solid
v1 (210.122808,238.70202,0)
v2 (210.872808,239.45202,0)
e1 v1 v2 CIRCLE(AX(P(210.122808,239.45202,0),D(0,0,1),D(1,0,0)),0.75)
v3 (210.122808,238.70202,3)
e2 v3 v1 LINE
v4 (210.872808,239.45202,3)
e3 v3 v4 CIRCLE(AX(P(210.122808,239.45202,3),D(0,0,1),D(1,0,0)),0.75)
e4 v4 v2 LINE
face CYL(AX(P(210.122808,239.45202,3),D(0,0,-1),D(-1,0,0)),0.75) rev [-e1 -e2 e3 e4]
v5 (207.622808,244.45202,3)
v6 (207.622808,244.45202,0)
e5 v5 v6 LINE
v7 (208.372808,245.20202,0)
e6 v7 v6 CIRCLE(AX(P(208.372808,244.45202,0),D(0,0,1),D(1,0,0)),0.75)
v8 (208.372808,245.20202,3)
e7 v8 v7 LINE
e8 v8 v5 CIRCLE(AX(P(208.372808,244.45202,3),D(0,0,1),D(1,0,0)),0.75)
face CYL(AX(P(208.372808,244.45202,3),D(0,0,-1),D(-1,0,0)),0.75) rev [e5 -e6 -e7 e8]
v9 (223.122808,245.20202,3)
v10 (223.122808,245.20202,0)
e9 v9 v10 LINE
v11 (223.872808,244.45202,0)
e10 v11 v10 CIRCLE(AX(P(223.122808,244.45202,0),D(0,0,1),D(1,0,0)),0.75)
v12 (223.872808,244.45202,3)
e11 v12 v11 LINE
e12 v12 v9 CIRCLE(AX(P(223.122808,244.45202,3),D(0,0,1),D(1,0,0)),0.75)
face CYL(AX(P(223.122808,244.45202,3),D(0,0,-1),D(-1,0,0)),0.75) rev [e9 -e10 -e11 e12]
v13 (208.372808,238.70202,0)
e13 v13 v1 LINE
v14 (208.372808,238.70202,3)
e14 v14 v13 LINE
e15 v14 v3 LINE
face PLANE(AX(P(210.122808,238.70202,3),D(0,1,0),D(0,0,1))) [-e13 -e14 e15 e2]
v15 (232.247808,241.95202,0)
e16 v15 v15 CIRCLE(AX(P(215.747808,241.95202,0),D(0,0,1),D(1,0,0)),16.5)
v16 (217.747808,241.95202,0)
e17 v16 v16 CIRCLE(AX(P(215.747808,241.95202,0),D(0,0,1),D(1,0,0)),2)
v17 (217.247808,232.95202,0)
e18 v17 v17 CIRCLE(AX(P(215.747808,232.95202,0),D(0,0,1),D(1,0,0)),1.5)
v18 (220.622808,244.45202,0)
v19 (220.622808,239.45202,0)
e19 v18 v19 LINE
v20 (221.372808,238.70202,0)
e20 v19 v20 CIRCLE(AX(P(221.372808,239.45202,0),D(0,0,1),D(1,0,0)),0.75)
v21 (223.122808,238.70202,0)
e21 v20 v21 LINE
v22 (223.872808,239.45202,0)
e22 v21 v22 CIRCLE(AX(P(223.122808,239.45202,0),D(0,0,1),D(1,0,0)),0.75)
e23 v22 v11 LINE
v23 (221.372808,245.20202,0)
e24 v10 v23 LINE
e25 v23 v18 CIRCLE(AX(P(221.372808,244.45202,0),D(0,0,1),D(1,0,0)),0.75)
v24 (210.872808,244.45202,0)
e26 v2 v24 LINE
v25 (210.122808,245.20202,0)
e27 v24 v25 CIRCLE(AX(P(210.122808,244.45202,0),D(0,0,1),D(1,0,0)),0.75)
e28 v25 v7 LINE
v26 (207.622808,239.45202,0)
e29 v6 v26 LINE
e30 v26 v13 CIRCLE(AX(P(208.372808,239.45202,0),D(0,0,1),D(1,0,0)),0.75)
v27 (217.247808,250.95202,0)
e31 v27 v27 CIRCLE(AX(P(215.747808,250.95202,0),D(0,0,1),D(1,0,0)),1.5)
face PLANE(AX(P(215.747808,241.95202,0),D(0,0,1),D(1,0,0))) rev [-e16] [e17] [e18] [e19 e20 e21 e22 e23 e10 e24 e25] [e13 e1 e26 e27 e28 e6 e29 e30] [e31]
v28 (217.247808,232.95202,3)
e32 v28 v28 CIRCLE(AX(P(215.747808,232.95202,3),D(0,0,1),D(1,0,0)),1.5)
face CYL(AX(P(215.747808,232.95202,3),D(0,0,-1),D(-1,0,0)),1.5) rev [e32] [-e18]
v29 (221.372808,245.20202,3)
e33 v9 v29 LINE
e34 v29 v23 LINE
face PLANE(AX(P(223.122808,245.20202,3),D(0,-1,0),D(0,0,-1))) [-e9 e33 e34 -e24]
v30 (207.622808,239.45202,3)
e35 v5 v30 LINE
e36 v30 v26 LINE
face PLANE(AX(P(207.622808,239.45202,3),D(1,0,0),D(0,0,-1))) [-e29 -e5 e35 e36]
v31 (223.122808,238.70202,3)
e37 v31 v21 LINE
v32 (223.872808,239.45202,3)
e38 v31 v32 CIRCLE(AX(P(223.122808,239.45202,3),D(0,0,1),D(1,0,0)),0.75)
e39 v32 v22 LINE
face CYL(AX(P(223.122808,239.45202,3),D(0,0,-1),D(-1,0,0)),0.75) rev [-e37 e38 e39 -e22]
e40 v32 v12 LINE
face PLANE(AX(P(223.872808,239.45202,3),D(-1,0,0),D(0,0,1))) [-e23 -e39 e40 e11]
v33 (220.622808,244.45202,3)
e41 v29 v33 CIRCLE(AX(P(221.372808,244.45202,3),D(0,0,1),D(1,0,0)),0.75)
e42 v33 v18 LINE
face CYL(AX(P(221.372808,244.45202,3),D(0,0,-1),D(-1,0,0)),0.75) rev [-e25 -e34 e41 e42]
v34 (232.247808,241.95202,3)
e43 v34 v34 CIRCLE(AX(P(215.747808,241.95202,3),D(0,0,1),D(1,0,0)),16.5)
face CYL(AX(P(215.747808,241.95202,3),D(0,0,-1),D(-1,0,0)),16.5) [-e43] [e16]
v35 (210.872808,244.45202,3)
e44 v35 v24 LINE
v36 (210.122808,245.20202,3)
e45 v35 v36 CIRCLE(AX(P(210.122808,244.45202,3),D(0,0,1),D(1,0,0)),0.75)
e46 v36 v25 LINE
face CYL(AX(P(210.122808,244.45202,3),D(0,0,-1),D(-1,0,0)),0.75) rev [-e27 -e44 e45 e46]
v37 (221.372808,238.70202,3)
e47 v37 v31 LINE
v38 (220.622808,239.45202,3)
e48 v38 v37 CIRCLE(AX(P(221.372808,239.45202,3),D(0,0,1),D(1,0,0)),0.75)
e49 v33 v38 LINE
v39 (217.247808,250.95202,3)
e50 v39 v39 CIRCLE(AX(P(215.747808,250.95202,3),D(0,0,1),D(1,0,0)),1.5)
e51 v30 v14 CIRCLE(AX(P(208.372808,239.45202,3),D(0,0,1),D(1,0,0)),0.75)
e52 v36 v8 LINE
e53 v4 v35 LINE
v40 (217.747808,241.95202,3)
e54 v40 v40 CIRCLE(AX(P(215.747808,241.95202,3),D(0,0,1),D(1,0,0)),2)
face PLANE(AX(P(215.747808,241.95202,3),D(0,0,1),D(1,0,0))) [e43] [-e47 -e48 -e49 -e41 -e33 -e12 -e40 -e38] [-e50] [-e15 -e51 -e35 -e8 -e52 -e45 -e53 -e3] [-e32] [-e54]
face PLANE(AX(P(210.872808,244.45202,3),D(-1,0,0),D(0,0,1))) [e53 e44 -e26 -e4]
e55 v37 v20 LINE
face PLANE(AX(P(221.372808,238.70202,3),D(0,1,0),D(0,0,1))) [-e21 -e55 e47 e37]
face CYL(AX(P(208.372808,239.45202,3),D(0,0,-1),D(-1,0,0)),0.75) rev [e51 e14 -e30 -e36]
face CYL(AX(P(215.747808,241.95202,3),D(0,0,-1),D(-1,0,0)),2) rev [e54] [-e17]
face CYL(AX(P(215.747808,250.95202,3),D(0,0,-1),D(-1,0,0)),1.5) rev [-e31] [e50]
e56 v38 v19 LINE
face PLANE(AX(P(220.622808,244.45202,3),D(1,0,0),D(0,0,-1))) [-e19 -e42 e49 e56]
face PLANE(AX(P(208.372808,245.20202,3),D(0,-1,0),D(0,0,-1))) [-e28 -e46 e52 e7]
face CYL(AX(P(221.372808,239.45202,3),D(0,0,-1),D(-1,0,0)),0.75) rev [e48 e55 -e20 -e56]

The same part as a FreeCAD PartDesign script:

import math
import FreeCAD as App
import Part
import Sketcher
Q = App.Units.Quantity

doc = App.newDocument("Part")
body = doc.addObject("PartDesign::Body", "Body")

# Sketch on XY plane
sketch1 = body.newObject("Sketcher::SketchObject", "Sketch")
sketch1.AttachmentSupport = (doc.getObject("XY_Plane"), [""])
sketch1.MapMode = "FlatFace"
sketch1.addGeometry([
    Part.Circle(App.Vector(215.747808, 241.95202, 0), App.Vector(0, 0, 1), 16.5),  # 0
    Part.Circle(App.Vector(215.747808, 232.95202, 0), App.Vector(0, 0, 1), 1.5),  # 1
    Part.ArcOfCircle(Part.Circle(App.Vector(208.372808, 244.45202, 0), App.Vector(0, 0, 1), 0.75), math.radians(90), math.radians(180)),  # 2
    Part.LineSegment(App.Vector(208.372808, 245.20202, 0), App.Vector(210.122808, 245.20202, 0)),  # 3
    Part.ArcOfCircle(Part.Circle(App.Vector(210.122808, 244.45202, 0), App.Vector(0, 0, 1), 0.75), math.radians(0), math.radians(90)),  # 4
    Part.LineSegment(App.Vector(210.872808, 244.45202, 0), App.Vector(210.872808, 239.45202, 0)),  # 5
    Part.ArcOfCircle(Part.Circle(App.Vector(210.122808, 239.45202, 0), App.Vector(0, 0, 1), 0.75), math.radians(-90), math.radians(0)),  # 6
    Part.LineSegment(App.Vector(210.122808, 238.70202, 0), App.Vector(208.372808, 238.70202, 0)),  # 7
    Part.ArcOfCircle(Part.Circle(App.Vector(208.372808, 239.45202, 0), App.Vector(0, 0, 1), 0.75), math.radians(-180), math.radians(-90)),  # 8
    Part.LineSegment(App.Vector(207.622808, 239.45202, 0), App.Vector(207.622808, 244.45202, 0)),  # 9
    Part.Circle(App.Vector(215.747808, 241.95202, 0), App.Vector(0, 0, 1), 2),  # 10
    Part.LineSegment(App.Vector(221.372808, 245.20202, 0), App.Vector(223.122808, 245.20202, 0)),  # 11
    Part.ArcOfCircle(Part.Circle(App.Vector(223.122808, 244.45202, 0), App.Vector(0, 0, 1), 0.75), math.radians(0), math.radians(90)),  # 12
    Part.LineSegment(App.Vector(223.872808, 244.45202, 0), App.Vector(223.872808, 239.45202, 0)),  # 13
    Part.ArcOfCircle(Part.Circle(App.Vector(223.122808, 239.45202, 0), App.Vector(0, 0, 1), 0.75), math.radians(-90), math.radians(0)),  # 14
    Part.LineSegment(App.Vector(223.122808, 238.70202, 0), App.Vector(221.372808, 238.70202, 0)),  # 15
    Part.ArcOfCircle(Part.Circle(App.Vector(221.372808, 239.45202, 0), App.Vector(0, 0, 1), 0.75), math.radians(-180), math.radians(-90)),  # 16
    Part.LineSegment(App.Vector(220.622808, 239.45202, 0), App.Vector(220.622808, 244.45202, 0)),  # 17
    Part.ArcOfCircle(Part.Circle(App.Vector(221.372808, 244.45202, 0), App.Vector(0, 0, 1), 0.75), math.radians(90), math.radians(180)),  # 18
    Part.Circle(App.Vector(215.747808, 250.95202, 0), App.Vector(0, 0, 1), 1.5),  # 19
], False)
sketch1.addConstraint([
    Sketcher.Constraint("Tangent", 2, 1, 3, 1),
    Sketcher.Constraint("Tangent", 3, 2, 4, 2),
    Sketcher.Constraint("Tangent", 4, 1, 5, 1),
    Sketcher.Constraint("Tangent", 5, 2, 6, 2),
    Sketcher.Constraint("Tangent", 6, 1, 7, 1),
    Sketcher.Constraint("Tangent", 7, 2, 8, 2),
    Sketcher.Constraint("Tangent", 8, 1, 9, 1),
    Sketcher.Constraint("Tangent", 9, 2, 2, 2),
    Sketcher.Constraint("Tangent", 11, 2, 12, 2),
    Sketcher.Constraint("Tangent", 12, 1, 13, 1),
    Sketcher.Constraint("Tangent", 13, 2, 14, 2),
    Sketcher.Constraint("Tangent", 14, 1, 15, 1),
    Sketcher.Constraint("Tangent", 15, 2, 16, 2),
    Sketcher.Constraint("Tangent", 16, 1, 17, 1),
    Sketcher.Constraint("Tangent", 17, 2, 18, 2),
    Sketcher.Constraint("Tangent", 18, 1, 11, 1),
    Sketcher.Constraint("Horizontal", 3),
    Sketcher.Constraint("Vertical", 5),
    Sketcher.Constraint("Horizontal", 7),
    Sketcher.Constraint("Vertical", 9),
    Sketcher.Constraint("Horizontal", 11),
    Sketcher.Constraint("Vertical", 13),
    Sketcher.Constraint("Horizontal", 15),
    Sketcher.Constraint("Vertical", 17),
    Sketcher.Constraint("Coincident", 10, 3, 0, 3),
    Sketcher.Constraint("Equal", 2, 4),
    Sketcher.Constraint("Equal", 4, 6),
    Sketcher.Constraint("Equal", 6, 8),
    Sketcher.Constraint("Equal", 8, 12),
    Sketcher.Constraint("Equal", 12, 14),
    Sketcher.Constraint("Equal", 14, 16),
    Sketcher.Constraint("Equal", 16, 18),
    Sketcher.Constraint("Equal", 1, 19),
    Sketcher.Constraint("Horizontal", 4, 3, 12, 3),
    Sketcher.Constraint("Horizontal", 8, 3, 14, 3),
    Sketcher.Constraint("Vertical", 0, 3, 1, 3),
    Sketcher.Constraint("Vertical", 10, 3, 19, 3),
    Sketcher.Constraint("Equal", 7, 11),
    Sketcher.Constraint("Diameter", 0, Q("33 mm")),
    Sketcher.Constraint("Diameter", 1, Q("3 mm")),
    Sketcher.Constraint("Diameter", 10, Q("4 mm")),
    Sketcher.Constraint("DistanceY", 5, 2, 5, 1, Q("5 mm")),
    Sketcher.Constraint("Radius", 2, Q("0.75 mm")),
    Sketcher.Constraint("DistanceY", 1, 3, 0, 3, Q("9 mm")),
    Sketcher.Constraint("DistanceX", 4, 3, 12, 3, Q("13 mm")),
    Sketcher.Constraint("DistanceY", 0, 3, 19, 3, Q("9 mm")),
    Sketcher.Constraint("DistanceX", 3, 1, 3, 2, Q("1.75 mm")),
    Sketcher.Constraint("DistanceY", 0, 3, 2, 3, Q("2.5 mm")),
    Sketcher.Constraint("DistanceX", 2, 3, 0, 3, Q("7.375 mm")),
    Sketcher.Constraint("DistanceY", -1, 1, 0, 3, Q("241.95202 mm")),
    Sketcher.Constraint("DistanceX", -1, 1, 0, 3, Q("215.747808 mm")),
])
pad1 = body.newObject("PartDesign::Pad", "Pad")
pad1.Profile = sketch1
pad1.Length = 3

doc.recompute()
